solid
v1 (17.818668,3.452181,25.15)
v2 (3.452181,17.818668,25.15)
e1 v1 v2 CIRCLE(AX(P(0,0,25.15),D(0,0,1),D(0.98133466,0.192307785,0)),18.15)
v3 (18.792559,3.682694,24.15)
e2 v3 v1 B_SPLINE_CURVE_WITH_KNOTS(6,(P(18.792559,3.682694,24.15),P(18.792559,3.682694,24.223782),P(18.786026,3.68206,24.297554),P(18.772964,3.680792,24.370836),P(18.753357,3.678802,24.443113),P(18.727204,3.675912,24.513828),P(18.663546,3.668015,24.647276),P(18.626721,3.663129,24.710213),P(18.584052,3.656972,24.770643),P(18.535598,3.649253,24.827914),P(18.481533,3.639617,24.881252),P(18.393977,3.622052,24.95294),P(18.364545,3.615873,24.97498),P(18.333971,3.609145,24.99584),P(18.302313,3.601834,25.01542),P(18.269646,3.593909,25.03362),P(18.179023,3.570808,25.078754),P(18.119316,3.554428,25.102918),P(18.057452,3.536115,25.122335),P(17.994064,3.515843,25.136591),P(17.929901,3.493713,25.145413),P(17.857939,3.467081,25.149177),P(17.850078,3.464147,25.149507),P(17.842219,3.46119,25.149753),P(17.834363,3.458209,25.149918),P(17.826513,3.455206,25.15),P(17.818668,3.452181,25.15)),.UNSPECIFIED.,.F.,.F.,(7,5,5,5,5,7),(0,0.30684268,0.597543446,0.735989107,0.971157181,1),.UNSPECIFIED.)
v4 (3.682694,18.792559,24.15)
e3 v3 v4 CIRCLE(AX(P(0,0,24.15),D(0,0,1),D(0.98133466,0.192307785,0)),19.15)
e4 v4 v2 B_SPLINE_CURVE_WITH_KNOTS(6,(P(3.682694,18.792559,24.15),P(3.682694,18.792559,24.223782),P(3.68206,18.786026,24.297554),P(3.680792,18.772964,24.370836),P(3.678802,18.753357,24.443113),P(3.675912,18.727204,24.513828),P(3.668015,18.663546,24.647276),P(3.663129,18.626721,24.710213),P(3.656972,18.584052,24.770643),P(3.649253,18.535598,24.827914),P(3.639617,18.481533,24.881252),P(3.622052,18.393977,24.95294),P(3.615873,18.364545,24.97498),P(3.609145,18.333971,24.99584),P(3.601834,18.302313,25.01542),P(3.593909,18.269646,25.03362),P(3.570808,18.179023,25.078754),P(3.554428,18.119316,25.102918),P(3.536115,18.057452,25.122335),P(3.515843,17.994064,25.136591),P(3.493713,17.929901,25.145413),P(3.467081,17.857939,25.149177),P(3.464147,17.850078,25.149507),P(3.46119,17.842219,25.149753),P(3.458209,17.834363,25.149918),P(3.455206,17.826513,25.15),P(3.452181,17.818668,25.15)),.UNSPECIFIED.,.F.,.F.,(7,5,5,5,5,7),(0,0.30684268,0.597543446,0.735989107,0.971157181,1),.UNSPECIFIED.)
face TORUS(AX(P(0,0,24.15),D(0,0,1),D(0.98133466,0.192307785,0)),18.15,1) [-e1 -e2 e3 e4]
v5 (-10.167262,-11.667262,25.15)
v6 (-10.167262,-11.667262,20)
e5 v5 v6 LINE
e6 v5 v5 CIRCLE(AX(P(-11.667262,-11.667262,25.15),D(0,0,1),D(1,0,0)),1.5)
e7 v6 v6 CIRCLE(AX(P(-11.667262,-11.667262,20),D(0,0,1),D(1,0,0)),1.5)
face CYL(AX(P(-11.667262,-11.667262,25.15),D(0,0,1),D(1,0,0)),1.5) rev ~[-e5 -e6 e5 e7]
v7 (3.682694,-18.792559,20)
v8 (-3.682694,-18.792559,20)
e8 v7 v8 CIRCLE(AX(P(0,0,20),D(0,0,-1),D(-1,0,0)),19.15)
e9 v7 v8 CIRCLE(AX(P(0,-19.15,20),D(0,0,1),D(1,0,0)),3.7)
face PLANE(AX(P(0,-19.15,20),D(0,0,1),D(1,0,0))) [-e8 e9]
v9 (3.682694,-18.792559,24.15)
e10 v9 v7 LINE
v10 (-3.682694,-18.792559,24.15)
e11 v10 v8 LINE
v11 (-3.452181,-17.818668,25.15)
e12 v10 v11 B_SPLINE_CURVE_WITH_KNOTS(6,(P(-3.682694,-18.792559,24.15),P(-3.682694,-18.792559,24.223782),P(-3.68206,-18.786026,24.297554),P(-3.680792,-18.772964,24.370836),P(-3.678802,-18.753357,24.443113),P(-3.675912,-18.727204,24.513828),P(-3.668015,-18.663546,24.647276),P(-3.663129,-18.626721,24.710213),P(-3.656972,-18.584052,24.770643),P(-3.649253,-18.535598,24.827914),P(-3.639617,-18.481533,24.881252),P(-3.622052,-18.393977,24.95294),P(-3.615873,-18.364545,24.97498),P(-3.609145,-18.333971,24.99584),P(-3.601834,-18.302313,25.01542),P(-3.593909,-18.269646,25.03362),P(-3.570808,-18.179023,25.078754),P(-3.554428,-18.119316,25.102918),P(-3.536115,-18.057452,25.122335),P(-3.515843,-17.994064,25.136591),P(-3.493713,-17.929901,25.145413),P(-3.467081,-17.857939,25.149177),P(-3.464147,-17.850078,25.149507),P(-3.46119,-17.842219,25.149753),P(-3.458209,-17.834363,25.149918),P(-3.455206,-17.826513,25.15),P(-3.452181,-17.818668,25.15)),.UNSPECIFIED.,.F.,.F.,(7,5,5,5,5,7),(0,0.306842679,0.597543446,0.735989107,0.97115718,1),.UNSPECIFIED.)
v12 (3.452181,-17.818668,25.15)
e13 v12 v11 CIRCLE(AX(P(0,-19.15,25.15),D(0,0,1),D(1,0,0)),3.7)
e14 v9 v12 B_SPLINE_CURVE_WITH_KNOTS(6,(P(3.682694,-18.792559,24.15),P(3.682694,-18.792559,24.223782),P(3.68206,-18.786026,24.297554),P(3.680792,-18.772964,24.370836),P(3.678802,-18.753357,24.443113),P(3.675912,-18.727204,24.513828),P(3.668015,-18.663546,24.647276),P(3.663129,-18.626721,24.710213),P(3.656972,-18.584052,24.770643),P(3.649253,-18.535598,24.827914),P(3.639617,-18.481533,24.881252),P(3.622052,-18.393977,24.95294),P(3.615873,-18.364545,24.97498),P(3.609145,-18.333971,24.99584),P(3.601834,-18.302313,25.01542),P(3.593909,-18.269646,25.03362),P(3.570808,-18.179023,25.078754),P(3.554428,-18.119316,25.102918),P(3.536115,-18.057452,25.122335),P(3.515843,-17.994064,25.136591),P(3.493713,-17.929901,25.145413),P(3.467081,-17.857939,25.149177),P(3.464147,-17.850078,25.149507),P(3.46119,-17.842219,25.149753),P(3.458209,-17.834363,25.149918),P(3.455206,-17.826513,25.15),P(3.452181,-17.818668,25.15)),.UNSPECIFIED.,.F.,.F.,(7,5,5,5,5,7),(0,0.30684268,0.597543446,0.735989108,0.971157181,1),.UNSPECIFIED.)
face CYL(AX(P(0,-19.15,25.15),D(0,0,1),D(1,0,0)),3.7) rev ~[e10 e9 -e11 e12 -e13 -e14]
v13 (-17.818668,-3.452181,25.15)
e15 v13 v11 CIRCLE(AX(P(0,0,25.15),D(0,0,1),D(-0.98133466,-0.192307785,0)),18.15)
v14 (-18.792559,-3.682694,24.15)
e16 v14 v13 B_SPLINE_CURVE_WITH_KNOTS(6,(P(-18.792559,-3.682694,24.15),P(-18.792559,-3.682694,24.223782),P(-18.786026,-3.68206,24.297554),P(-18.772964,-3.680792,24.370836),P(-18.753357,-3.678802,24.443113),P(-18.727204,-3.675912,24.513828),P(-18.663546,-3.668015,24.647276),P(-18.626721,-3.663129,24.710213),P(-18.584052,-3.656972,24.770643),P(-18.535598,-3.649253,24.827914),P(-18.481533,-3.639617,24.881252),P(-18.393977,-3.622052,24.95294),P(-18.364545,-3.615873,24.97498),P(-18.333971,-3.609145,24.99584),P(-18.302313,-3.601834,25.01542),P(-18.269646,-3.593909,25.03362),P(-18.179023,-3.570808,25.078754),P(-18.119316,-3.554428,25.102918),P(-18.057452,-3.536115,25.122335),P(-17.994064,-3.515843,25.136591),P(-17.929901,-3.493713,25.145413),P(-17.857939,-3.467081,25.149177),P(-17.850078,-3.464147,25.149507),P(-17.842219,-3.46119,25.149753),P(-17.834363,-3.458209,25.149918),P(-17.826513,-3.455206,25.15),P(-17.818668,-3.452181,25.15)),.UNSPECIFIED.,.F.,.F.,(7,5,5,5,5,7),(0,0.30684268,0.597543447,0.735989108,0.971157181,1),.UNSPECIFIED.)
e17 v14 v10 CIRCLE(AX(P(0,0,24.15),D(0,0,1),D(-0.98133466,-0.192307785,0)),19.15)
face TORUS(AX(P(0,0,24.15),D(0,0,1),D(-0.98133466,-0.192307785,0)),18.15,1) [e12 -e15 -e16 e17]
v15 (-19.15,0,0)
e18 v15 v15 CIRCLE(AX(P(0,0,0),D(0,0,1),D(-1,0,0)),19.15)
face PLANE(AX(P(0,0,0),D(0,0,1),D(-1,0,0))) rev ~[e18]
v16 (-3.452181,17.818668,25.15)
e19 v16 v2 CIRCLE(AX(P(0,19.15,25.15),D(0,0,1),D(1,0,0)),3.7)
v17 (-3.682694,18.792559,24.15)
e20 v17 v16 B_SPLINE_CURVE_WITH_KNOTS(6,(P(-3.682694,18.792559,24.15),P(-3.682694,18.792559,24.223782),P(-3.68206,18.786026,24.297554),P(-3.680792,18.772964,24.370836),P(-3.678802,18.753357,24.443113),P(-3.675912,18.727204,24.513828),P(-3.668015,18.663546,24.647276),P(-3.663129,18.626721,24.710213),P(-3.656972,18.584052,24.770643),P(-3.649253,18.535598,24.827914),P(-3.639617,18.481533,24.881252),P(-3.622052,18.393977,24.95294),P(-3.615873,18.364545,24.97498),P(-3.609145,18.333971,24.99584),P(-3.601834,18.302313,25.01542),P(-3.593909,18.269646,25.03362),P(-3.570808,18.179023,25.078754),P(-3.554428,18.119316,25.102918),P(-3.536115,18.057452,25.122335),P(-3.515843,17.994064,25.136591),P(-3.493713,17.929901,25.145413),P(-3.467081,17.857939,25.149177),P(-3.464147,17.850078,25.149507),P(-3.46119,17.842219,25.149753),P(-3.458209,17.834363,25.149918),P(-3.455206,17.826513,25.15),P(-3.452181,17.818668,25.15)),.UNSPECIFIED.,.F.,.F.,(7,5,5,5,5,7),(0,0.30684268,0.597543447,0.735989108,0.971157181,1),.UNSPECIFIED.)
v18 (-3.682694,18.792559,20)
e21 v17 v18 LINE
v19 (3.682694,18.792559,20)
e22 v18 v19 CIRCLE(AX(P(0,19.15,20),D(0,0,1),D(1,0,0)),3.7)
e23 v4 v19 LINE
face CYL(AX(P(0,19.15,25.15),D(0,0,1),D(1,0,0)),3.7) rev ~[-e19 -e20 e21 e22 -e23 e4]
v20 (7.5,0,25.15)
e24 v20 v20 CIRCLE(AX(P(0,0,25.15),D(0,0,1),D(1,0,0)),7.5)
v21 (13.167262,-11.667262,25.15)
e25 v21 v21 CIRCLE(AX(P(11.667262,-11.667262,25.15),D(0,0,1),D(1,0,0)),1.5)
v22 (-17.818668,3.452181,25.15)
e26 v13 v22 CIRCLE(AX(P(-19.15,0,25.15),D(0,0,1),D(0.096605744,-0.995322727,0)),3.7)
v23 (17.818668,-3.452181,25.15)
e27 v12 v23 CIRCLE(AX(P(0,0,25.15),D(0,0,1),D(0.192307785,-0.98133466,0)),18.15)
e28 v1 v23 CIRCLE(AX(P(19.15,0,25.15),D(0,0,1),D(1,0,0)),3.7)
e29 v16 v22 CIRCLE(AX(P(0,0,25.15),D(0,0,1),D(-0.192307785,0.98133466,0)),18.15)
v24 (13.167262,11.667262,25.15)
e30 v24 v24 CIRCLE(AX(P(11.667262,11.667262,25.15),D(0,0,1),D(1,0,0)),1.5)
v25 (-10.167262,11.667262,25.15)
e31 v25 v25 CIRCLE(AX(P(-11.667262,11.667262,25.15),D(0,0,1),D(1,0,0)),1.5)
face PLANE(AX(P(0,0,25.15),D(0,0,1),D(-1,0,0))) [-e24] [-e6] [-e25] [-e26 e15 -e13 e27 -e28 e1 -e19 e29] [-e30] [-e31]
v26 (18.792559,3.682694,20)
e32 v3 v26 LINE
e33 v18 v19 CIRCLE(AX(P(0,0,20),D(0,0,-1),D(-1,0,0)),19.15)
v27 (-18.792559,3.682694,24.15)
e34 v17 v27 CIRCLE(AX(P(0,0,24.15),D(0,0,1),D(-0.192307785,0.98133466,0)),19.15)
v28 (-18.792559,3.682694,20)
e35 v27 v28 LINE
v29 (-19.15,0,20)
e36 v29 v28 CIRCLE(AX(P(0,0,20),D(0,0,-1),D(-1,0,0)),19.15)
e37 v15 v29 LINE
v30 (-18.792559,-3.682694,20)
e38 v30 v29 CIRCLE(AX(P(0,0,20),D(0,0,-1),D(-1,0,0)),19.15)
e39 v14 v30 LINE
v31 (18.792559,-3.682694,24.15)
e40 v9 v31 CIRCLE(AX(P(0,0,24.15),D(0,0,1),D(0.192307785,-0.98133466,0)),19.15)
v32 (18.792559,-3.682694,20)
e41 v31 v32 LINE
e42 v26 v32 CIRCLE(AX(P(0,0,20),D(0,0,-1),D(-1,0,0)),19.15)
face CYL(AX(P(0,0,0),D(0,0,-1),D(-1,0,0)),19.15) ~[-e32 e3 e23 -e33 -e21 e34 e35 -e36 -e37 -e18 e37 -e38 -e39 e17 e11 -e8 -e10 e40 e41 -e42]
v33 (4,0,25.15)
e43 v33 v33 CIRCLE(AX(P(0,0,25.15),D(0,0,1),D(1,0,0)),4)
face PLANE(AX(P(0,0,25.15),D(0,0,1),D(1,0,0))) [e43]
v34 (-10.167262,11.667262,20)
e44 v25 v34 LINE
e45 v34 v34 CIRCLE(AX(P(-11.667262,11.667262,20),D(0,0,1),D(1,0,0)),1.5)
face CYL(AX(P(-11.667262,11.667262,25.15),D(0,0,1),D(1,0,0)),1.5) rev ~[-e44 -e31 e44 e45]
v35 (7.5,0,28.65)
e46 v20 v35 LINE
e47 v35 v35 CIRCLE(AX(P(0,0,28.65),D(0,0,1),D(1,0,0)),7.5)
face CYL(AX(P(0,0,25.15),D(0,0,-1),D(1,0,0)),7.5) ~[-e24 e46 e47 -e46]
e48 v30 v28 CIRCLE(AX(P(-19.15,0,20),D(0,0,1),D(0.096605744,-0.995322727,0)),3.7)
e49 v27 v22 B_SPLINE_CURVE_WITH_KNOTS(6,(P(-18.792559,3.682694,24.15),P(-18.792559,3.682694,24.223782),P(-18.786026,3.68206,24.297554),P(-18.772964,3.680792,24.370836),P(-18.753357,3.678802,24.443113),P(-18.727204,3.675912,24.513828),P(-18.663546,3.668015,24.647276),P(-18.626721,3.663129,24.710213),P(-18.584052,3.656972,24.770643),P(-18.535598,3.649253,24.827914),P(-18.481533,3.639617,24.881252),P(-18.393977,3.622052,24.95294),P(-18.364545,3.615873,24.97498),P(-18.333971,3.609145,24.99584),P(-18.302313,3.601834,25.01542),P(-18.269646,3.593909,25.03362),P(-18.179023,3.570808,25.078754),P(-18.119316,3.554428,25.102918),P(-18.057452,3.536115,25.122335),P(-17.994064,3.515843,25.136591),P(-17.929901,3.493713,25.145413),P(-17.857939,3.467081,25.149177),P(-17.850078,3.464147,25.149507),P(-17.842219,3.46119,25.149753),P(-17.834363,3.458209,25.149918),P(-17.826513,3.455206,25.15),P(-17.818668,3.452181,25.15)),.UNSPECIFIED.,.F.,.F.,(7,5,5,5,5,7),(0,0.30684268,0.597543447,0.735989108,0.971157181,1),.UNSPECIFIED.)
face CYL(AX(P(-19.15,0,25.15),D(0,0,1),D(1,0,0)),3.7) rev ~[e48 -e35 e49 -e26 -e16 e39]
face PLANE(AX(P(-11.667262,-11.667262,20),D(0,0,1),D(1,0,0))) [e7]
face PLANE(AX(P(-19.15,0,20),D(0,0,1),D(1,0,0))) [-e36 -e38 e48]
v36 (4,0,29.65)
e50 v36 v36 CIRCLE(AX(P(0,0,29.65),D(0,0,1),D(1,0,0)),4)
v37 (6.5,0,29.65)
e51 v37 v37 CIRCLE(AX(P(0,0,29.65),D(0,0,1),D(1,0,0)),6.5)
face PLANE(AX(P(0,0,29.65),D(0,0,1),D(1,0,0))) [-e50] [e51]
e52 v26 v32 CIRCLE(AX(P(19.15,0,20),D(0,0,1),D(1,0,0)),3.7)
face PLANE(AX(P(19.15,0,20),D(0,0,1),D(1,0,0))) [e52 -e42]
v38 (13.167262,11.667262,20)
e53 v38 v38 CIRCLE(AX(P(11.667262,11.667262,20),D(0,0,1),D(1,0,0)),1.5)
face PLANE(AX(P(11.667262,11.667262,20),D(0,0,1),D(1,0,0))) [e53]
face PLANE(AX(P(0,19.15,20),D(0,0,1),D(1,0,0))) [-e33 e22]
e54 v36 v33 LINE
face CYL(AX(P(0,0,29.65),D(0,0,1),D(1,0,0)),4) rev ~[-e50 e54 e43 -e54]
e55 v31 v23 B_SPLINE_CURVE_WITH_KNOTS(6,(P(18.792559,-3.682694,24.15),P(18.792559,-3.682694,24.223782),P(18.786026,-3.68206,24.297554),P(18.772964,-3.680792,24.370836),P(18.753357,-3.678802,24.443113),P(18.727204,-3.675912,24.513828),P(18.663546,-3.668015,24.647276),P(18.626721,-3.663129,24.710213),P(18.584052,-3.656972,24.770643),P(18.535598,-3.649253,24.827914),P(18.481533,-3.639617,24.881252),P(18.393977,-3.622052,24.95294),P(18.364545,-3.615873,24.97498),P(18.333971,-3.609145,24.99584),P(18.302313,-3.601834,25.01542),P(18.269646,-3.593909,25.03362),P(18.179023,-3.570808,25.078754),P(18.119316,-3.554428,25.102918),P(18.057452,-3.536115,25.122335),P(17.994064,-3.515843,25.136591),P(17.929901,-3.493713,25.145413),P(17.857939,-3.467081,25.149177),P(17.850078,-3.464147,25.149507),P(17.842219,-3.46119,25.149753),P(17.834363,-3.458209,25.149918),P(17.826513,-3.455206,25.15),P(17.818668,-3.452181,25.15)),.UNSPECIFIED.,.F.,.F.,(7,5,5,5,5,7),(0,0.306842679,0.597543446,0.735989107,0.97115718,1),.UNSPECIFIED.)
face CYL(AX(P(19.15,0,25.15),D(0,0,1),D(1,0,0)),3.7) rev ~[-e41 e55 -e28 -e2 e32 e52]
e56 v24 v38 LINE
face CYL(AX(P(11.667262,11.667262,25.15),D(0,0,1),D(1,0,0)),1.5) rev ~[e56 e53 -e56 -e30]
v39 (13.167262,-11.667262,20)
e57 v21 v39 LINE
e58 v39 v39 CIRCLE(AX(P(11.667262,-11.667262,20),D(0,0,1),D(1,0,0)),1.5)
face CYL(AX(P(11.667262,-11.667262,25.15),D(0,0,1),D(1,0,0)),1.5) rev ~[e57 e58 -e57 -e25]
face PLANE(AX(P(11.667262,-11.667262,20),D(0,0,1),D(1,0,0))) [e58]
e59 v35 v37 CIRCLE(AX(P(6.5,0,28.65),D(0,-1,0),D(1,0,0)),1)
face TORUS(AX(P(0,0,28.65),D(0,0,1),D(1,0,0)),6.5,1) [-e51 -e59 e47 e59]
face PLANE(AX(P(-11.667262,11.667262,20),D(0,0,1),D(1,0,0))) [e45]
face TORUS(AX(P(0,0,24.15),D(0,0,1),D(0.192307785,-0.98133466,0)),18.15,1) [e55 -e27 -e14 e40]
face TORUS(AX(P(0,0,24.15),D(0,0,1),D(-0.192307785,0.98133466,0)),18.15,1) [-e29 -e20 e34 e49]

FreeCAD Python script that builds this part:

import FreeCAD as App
import Part
import Sketcher
from FreeCAD import Vector


def edges_at(feature, points):
    """Names of the edges that pass closest to the given points."""
    edges = feature.Shape.Edges
    near = lambda p: min(range(len(edges)), key=lambda i: edges[i].distToShape(Part.Vertex(*p))[0])
    return sorted({f"Edge{near(p) + 1}" for p in points})

doc = App.newDocument("Part")
body = doc.addObject("PartDesign::Body", "Body")

# Sketch on XY plane
sketch1 = body.newObject("Sketcher::SketchObject", "Sketch")
sketch1.AttachmentSupport = (doc.getObject("XY_Plane"), [""])
sketch1.MapMode = "FlatFace"
sketch1.addGeometry(Part.Circle(Vector(0, 0, 0), Vector(0, 0, 1), 19), False)
sketch1.addConstraint([
    Sketcher.Constraint("Coincident", 0, 3, -1, 1),
    Sketcher.Constraint("Diameter", 0, 38.3),
])
pad1 = body.newObject("PartDesign::Pad", "Pad")
pad1.Profile = sketch1
pad1.Length = 25.15

# Sketch on XY plane
sketch2 = body.newObject("Sketcher::SketchObject", "Sketch001")
sketch2.AttachmentSupport = (doc.getObject("XY_Plane"), [""])
sketch2.MapMode = "FlatFace"
sketch2.AttachmentOffset = App.Placement(Vector(0, 0, 25.15), App.Rotation())
sketch2.addGeometry([
    Part.Circle(Vector(11.7, 11.7, 0), Vector(0, 0, 1), 1.5),  # 0
    Part.Circle(Vector(-11.7, -11.7, 0), Vector(0, 0, 1), 1.5),  # 1
    Part.Circle(Vector(11.7, -11.7, 0), Vector(0, 0, 1), 1.5),  # 2
    Part.Circle(Vector(-11.7, 11.7, 0), Vector(0, 0, 1), 1.5),  # 3
    Part.Circle(Vector(0, 19.1, 0), Vector(0, 0, 1), 3.7),  # 4
    Part.Circle(Vector(0, -19.1, 0), Vector(0, 0, 1), 3.7),  # 5
    Part.Circle(Vector(-19.1, 0, 0), Vector(0, 0, 1), 3.7),  # 6
    Part.Circle(Vector(19.1, 0, 0), Vector(0, 0, 1), 3.7),  # 7
], False)
sketch2.addConstraint([
    Sketcher.Constraint("Equal", 0, 1),
    Sketcher.Constraint("Equal", 1, 2),
    Sketcher.Constraint("Equal", 2, 3),
    Sketcher.Constraint("Equal", 4, 5),
    Sketcher.Constraint("Equal", 5, 6),
    Sketcher.Constraint("Equal", 6, 7),
    Sketcher.Constraint("Symmetric", 0, 3, 1, 3, -1, 1),
    Sketcher.Constraint("Symmetric", 2, 3, 3, 3, -1, 1),
    Sketcher.Constraint("Symmetric", 4, 3, 5, 3, -1, 1),
    Sketcher.Constraint("Symmetric", 6, 3, 7, 3, -1, 1),
    Sketcher.Constraint("Symmetric", 1, 3, 2, 3, -2),
    Sketcher.Constraint("PointOnObject", 4, 3, -2),
    Sketcher.Constraint("PointOnObject", 6, 3, -1),
    Sketcher.Constraint("Diameter", 0, 3.0),
    Sketcher.Constraint("Diameter", 4, 7.4),
    Sketcher.Constraint("DistanceY", 5, 3, 4, 3, 38.3),
    Sketcher.Constraint("DistanceX", 6, 3, -1, 1, 19.15),
    Sketcher.Constraint("DistanceX", -1, 1, 0, 3, 11.667262),
    Sketcher.Constraint("DistanceY", -1, 1, 0, 3, 11.667262),
])
pocket1 = body.newObject("PartDesign::Pocket", "Pocket")
pocket1.Profile = sketch2
pocket1.Length = 5.15

# Sketch on XY plane
sketch3 = body.newObject("Sketcher::SketchObject", "Sketch002")
sketch3.AttachmentSupport = (doc.getObject("XY_Plane"), [""])
sketch3.MapMode = "FlatFace"
sketch3.AttachmentOffset = App.Placement(Vector(0, 0, 25.15), App.Rotation())
sketch3.addGeometry(Part.Circle(Vector(0, 0, 0), Vector(0, 0, 1), 8), False)
sketch3.addConstraint([
    Sketcher.Constraint("Coincident", 0, 3, -1, 1),
    Sketcher.Constraint("Diameter", 0, 15.0),
])
pad2 = body.newObject("PartDesign::Pad", "Pad001")
pad2.Profile = sketch3
pad2.Length = 4.5

# Sketch on XY plane
sketch4 = body.newObject("Sketcher::SketchObject", "Sketch003")
sketch4.AttachmentSupport = (doc.getObject("XY_Plane"), [""])
sketch4.MapMode = "FlatFace"
sketch4.AttachmentOffset = App.Placement(Vector(0, 0, 29.65), App.Rotation())
sketch4.addGeometry(Part.Circle(Vector(0, 0, 0), Vector(0, 0, 1), 4), False)
sketch4.addConstraint([
    Sketcher.Constraint("Coincident", 0, 3, -1, 1),
    Sketcher.Constraint("Diameter", 0, 8.0),
])
pocket2 = body.newObject("PartDesign::Pocket", "Pocket001")
pocket2.Profile = sketch4
pocket2.Length = 4.5
doc.recompute()

fillet = body.newObject("PartDesign::Fillet", "Fillet")
fillet.Base = (pocket2, edges_at(pocket2, [
    (13.541, 13.541, 25.15),
    (-7.5, 0, 29.65),
    (-13.541, 13.541, 25.15),
    (-13.541, -13.541, 25.15),
    (13.541, -13.541, 25.15),
]))
fillet.Radius = 1

doc.recompute()
